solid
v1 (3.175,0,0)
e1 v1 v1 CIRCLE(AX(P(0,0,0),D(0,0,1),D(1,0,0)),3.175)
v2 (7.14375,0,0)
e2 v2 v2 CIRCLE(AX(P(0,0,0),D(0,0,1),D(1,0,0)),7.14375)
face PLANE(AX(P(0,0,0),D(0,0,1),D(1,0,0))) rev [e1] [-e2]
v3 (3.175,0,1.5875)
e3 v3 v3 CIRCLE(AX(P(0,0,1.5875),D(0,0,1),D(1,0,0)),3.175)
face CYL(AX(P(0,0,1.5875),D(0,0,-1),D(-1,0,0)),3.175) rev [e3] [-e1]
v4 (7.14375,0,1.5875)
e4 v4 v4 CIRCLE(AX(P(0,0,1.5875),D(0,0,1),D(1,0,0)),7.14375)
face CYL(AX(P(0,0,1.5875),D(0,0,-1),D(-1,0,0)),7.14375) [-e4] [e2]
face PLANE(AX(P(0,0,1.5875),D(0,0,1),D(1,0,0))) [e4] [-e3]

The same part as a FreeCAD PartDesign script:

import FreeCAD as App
import Part
import Sketcher
from FreeCAD import Vector
Q = App.Units.Quantity

doc = App.newDocument("Part")
body = doc.addObject("PartDesign::Body", "Body")

sketch1 = body.newObject("Sketcher::SketchObject", "Sketch")
sketch1.AttachmentSupport = (doc.getObject("XY_Plane"), [""])
sketch1.MapMode = "FlatFace"
sketch1.addGeometry([
    Part.Circle(Vector(0, 0, 0), Vector(0, 0, 1), 7.1),
    Part.Circle(Vector(0, 0, 0), Vector(0, 0, 1), 3.2),
], False)
sketch1.addConstraint([
    Sketcher.Constraint("Coincident", 0, 3, -1, 1),
    Sketcher.Constraint("Coincident", 1, 3, -1, 1),
    Sketcher.Constraint("Diameter", 1, Q("0.25 in")),
    Sketcher.Constraint("Diameter", 0, Q("0.5625 in")),
])
pad1 = body.newObject("PartDesign::Pad", "Pad")
pad1.Profile = sketch1
pad1.Length = Q("0.0625 in")

doc.recompute()
